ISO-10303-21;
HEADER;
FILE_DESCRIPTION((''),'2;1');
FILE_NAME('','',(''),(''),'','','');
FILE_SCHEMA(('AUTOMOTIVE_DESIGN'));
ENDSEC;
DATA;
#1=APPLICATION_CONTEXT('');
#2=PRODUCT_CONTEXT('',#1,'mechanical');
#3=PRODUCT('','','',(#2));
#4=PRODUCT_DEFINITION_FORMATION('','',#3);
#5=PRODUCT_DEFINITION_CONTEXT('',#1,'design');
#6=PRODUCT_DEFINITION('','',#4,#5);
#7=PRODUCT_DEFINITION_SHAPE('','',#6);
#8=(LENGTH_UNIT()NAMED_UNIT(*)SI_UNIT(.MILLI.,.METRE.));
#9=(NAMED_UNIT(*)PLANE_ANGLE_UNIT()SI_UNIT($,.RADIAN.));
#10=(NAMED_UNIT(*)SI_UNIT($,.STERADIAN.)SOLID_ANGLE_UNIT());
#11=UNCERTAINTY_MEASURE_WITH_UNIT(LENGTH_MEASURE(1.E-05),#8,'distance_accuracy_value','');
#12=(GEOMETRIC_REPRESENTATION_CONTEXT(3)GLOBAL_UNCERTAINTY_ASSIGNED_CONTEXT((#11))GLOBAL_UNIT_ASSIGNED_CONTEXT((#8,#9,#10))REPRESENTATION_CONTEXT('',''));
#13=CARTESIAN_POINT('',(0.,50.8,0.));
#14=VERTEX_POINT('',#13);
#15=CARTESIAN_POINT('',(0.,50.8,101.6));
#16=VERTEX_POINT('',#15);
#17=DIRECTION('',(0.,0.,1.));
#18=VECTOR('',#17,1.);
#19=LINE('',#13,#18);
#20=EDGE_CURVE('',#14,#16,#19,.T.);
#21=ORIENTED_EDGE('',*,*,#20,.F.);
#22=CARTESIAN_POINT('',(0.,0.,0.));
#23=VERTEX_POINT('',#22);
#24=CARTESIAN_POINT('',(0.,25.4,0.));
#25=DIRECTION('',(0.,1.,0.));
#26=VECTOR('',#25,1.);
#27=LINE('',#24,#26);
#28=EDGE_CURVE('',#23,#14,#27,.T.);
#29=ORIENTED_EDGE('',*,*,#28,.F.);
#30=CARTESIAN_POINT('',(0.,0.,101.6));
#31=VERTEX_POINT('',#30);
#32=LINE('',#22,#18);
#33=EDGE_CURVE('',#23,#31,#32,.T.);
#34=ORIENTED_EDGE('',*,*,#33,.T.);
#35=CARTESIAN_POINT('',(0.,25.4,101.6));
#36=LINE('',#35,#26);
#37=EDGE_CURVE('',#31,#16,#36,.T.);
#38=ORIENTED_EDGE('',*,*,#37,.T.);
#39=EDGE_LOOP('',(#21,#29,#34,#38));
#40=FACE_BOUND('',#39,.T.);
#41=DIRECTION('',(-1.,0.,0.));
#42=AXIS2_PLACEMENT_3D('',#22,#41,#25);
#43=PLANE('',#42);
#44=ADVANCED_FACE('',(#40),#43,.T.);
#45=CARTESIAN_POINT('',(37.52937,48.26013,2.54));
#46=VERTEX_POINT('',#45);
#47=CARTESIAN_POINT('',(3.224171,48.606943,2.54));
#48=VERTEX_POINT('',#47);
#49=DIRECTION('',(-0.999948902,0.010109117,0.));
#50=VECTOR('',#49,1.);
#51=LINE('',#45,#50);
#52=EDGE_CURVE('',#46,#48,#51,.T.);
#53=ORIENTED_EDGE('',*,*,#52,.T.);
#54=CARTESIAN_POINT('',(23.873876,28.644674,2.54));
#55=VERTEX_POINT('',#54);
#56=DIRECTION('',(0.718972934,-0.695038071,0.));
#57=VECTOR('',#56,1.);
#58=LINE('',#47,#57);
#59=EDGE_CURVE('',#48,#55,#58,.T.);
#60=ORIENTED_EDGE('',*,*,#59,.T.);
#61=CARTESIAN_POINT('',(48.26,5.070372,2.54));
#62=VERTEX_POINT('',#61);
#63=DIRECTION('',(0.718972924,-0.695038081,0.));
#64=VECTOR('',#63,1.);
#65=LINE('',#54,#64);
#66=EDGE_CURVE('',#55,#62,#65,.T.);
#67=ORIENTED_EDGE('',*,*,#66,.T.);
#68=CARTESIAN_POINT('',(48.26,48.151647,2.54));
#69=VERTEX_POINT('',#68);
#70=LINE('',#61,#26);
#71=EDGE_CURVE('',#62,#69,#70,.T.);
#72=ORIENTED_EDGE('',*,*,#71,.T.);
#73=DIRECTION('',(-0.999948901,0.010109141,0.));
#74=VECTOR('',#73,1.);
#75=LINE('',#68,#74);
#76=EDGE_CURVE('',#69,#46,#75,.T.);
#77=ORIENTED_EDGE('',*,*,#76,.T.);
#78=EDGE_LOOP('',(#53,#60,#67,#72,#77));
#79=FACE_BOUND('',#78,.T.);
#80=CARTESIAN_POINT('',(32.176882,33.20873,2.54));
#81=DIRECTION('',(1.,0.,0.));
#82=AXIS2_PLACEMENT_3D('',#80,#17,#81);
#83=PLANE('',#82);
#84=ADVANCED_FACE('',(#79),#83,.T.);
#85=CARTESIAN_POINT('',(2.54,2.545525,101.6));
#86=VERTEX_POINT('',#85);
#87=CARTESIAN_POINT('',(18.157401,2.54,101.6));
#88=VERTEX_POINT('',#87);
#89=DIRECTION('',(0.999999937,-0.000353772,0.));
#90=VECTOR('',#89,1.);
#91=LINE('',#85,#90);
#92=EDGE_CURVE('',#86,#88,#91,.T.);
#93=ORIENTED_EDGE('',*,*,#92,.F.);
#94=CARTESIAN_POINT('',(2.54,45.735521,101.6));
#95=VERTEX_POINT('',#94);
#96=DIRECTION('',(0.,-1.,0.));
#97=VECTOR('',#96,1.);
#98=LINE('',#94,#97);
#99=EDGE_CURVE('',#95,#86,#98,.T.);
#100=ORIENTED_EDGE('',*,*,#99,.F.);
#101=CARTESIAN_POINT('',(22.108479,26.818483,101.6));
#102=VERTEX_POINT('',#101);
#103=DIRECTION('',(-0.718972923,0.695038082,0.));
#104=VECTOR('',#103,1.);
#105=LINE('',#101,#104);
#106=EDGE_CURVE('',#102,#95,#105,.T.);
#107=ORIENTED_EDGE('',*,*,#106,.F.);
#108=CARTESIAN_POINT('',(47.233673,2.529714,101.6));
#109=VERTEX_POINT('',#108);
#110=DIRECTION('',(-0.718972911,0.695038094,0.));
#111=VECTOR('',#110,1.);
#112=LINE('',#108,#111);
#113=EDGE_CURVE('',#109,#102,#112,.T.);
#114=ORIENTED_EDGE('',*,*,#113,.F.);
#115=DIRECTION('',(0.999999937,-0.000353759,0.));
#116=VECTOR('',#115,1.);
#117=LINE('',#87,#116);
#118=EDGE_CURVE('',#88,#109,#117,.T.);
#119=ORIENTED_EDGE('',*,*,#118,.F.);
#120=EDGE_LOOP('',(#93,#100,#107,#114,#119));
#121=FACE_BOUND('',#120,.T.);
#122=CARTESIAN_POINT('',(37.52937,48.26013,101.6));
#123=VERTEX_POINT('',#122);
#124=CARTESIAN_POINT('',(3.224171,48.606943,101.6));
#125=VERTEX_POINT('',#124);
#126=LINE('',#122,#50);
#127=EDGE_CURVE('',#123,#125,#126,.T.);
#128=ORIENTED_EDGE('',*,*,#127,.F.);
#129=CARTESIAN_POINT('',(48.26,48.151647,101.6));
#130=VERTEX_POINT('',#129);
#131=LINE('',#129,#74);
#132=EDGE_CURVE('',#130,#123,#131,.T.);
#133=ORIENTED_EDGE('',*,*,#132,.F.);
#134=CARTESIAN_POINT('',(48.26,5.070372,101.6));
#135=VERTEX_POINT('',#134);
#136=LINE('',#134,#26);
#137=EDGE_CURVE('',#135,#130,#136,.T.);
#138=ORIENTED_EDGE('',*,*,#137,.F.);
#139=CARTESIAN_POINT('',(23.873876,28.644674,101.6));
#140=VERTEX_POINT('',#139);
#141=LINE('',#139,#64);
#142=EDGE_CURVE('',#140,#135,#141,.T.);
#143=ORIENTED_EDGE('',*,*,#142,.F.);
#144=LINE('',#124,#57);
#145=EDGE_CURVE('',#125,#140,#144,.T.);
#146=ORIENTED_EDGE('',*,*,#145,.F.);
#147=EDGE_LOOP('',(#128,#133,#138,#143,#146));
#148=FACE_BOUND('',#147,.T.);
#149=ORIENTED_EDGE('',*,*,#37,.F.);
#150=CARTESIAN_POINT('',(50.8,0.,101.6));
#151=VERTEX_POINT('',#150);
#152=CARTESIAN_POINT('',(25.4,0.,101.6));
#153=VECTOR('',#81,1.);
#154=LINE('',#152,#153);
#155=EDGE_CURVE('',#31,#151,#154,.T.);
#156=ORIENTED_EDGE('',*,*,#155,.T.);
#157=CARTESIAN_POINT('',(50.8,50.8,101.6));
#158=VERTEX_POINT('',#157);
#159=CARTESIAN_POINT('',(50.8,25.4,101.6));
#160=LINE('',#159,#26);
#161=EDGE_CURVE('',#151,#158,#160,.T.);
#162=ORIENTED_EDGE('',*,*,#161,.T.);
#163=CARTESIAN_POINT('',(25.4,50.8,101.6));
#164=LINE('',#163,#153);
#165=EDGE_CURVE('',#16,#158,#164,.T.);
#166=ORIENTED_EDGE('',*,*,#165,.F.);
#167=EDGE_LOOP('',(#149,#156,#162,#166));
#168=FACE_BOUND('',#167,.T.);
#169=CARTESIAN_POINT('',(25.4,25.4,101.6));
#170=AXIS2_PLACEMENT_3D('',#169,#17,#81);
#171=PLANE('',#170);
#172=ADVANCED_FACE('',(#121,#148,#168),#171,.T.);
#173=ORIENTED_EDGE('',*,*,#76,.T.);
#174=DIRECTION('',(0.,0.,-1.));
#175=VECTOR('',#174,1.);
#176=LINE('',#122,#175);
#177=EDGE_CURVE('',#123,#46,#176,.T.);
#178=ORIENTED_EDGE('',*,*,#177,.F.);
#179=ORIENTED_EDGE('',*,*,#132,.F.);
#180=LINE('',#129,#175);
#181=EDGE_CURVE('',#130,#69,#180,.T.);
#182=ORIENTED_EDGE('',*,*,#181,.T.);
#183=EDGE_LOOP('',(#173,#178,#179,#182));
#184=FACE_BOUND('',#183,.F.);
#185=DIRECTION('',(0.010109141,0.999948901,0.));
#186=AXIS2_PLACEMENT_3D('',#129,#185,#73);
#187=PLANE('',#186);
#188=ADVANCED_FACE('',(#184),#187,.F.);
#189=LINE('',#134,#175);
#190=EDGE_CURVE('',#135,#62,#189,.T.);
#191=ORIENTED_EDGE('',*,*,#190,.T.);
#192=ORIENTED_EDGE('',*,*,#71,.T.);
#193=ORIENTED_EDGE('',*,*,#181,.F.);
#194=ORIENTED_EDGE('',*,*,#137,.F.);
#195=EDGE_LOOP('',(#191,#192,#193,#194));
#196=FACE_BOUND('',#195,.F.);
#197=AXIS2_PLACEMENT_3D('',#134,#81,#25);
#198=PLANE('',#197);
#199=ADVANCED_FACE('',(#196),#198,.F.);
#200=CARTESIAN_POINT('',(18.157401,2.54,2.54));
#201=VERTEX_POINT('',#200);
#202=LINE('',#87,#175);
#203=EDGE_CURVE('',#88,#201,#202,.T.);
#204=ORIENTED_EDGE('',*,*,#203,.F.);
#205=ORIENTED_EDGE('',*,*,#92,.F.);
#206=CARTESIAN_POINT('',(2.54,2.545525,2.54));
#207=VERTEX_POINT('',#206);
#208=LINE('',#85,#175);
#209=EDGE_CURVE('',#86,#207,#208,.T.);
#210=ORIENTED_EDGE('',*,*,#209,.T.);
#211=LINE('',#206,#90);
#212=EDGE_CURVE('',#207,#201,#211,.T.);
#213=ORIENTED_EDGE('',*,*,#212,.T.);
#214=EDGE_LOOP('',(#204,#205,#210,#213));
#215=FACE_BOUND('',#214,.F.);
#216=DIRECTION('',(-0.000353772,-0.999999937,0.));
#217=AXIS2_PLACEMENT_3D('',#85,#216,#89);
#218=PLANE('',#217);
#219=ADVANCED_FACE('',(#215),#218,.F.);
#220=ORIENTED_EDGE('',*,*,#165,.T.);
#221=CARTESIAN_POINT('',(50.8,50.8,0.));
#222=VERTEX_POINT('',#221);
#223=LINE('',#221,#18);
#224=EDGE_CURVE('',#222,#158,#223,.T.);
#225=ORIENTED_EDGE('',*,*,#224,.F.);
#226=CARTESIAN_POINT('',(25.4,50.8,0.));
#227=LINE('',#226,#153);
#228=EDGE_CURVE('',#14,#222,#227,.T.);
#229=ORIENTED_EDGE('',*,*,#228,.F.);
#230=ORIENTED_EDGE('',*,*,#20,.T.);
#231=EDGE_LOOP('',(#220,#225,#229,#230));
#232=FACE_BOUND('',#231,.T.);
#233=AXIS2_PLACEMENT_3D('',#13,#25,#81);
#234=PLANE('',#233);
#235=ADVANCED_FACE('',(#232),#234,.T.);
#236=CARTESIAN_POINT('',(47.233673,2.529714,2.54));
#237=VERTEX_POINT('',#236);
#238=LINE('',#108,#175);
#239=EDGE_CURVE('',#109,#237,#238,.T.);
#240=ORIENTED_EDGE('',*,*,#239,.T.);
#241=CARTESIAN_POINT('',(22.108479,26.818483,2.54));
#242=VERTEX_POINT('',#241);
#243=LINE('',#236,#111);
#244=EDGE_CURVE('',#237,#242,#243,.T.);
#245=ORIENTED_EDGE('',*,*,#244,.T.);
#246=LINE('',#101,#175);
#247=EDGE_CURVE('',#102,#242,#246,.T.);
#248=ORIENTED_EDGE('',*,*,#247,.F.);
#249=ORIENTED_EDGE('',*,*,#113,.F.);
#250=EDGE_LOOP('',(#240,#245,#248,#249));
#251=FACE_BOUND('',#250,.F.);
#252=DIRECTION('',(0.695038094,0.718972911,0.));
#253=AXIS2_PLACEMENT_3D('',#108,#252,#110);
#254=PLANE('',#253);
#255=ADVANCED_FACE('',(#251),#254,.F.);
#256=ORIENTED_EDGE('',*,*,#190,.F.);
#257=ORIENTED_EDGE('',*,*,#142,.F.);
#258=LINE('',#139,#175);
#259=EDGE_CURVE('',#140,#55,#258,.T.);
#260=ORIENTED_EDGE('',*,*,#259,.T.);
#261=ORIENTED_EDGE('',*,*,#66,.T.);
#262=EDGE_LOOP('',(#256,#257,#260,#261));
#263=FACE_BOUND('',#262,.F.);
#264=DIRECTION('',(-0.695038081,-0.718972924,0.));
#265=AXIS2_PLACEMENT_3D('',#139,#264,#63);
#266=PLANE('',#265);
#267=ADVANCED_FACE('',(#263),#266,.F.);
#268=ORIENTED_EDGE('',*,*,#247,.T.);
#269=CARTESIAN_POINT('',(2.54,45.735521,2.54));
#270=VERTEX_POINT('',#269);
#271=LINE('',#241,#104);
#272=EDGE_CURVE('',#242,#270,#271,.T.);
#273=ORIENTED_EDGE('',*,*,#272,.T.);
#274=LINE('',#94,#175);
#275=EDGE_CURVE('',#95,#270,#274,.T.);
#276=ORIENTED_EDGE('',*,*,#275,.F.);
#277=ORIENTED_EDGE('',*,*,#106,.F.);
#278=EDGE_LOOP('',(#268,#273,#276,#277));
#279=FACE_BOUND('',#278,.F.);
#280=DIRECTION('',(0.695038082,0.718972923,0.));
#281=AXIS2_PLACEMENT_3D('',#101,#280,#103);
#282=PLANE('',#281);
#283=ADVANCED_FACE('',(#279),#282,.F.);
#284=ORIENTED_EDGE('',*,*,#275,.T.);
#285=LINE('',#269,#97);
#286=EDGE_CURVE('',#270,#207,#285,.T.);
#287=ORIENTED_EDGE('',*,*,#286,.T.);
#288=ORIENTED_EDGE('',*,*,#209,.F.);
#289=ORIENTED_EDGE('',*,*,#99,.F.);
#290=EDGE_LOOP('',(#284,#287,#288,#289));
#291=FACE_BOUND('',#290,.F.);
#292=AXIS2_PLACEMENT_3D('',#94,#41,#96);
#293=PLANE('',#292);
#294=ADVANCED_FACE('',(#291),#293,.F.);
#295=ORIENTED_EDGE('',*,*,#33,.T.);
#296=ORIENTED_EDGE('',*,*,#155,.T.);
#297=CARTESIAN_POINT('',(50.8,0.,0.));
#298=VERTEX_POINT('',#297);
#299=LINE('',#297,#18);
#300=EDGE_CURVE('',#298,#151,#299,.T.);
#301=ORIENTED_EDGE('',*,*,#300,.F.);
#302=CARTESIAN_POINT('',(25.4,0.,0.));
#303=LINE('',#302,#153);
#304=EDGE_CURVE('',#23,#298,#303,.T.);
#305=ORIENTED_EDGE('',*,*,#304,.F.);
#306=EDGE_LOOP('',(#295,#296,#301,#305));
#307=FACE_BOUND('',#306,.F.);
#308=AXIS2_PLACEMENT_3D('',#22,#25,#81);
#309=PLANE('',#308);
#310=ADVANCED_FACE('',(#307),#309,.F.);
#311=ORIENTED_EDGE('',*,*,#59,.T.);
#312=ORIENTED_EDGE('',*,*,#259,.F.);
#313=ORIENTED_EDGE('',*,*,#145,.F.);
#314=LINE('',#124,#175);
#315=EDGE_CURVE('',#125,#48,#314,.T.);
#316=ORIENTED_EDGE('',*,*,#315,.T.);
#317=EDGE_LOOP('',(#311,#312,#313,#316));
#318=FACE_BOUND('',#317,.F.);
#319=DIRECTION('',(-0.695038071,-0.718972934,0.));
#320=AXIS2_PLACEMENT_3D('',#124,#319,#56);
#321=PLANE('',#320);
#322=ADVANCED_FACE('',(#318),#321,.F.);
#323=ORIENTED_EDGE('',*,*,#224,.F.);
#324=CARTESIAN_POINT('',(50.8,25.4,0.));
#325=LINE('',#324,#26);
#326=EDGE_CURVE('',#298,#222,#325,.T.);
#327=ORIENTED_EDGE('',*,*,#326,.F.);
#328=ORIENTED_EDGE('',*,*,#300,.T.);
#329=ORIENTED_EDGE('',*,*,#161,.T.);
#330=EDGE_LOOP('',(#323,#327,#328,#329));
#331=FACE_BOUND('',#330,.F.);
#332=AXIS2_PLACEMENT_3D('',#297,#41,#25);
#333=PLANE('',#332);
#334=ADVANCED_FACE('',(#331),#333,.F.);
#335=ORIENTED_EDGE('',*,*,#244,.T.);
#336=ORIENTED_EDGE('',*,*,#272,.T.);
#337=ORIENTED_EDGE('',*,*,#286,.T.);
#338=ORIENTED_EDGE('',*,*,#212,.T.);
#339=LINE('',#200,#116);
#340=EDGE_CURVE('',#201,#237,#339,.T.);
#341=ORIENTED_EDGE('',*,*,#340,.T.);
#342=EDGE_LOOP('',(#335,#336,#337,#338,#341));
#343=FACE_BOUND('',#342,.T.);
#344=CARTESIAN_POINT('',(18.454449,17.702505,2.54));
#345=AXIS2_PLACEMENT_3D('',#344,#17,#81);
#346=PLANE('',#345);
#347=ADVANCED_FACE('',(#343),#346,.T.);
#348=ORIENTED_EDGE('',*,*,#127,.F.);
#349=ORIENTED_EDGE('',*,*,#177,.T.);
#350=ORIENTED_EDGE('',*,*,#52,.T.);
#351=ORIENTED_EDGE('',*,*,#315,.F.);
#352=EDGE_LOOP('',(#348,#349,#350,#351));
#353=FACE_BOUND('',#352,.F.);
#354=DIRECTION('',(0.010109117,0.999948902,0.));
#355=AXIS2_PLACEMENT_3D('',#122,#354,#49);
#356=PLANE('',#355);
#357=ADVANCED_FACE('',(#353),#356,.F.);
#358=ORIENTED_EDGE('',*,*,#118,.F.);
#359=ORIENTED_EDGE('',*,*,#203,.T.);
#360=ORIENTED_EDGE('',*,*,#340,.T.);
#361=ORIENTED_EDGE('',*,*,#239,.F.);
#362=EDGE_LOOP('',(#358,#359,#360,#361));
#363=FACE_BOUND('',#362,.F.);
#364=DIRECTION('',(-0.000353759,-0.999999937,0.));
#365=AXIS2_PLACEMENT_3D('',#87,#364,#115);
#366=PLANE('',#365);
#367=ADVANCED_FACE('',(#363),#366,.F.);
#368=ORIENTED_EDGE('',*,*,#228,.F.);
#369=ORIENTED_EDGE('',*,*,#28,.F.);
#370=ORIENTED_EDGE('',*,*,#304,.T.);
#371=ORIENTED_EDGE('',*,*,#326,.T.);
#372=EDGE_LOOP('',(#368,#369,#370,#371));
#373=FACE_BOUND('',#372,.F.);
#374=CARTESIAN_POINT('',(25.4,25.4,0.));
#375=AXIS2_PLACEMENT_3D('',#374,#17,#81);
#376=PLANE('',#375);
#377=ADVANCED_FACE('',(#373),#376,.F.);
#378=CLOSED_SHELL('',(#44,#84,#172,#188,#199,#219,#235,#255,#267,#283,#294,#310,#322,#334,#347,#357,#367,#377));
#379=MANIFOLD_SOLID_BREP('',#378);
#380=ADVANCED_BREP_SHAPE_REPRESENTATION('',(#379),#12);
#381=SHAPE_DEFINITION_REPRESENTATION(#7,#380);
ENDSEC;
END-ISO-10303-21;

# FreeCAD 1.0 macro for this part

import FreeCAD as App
import Part
import Sketcher
from FreeCAD import Vector
Q = App.Units.Quantity


def add_polygon(sketch, points):
    """Adds a closed chain of lines whose ends are joined by coincident constraints."""
    first, n = sketch.GeometryCount, len(points)
    for a, b in zip(points, points[1:] + points[:1]):
        sketch.addGeometry(Part.LineSegment(App.Vector(*a, 0), App.Vector(*b, 0)), False)
    for i in range(n):
        sketch.addConstraint(Sketcher.Constraint("Coincident", first + i, 2, first + (i + 1) % n, 1))

doc = App.newDocument("Part")
body = doc.addObject("PartDesign::Body", "Body")

# Sketch on XY plane
sketch1 = body.newObject("Sketcher::SketchObject", "Sketch")
sketch1.AttachmentSupport = (doc.getObject("XY_Plane"), [""])
sketch1.MapMode = "FlatFace"
add_polygon(sketch1, [(0, 51), (0, 0), (51, 0), (51, 51)])  # lines 0-3
sketch1.addConstraint([
    Sketcher.Constraint("Vertical", 0),
    Sketcher.Constraint("Horizontal", 1),
    Sketcher.Constraint("Vertical", 2),
    Sketcher.Constraint("Horizontal", 3),
    Sketcher.Constraint("Coincident", 0, 2, -1, 1),
    Sketcher.Constraint("Equal", 3, 0),
    Sketcher.Constraint("DistanceX", 1, 1, 1, 2, Q("2 in")),
])
pad1 = body.newObject("PartDesign::Pad", "Pad")
pad1.Profile = sketch1
pad1.Length = Q("4 in")

# Sketch on XY plane
sketch2 = body.newObject("Sketcher::SketchObject", "Sketch001")
sketch2.AttachmentSupport = (doc.getObject("XY_Plane"), [""])
sketch2.MapMode = "FlatFace"
sketch2.AttachmentOffset = App.Placement(Vector(0, 0, 4 * 25.4), App.Rotation())
add_polygon(sketch2, [(3, 3), (18, 3), (47, 3), (22, 27), (3, 46)])  # lines 0-4
sketch2.addConstraint([
    Sketcher.Constraint("Vertical", 4),
    Sketcher.Constraint("Parallel", 0, 1),
    Sketcher.Constraint("Parallel", 2, 3),
    Sketcher.Constraint("DistanceY", -1, 1, 0, 2, Q("0.1 in")),
    Sketcher.Constraint("DistanceX", -1, 1, 3, 2, Q("0.1 in")),
    Sketcher.Constraint("Distance", 0, Q("15.617402 mm")),
    Sketcher.Constraint("Distance", 3, Q("27.217268 mm")),
    Sketcher.Constraint("DistanceY", 4, 2, 4, 1, Q("43.189996 mm")),
    Sketcher.Constraint("DistanceX", -1, 1, 2, 2, Q("22.108479 mm")),
    Sketcher.Constraint("DistanceY", -1, 1, 3, 2, Q("45.735521 mm")),
])
pocket1 = body.newObject("PartDesign::Pocket", "Pocket")
pocket1.Profile = sketch2
pocket1.Length = Q("3.9 in")

# Sketch on XY plane
sketch3 = body.newObject("Sketcher::SketchObject", "Sketch002")
sketch3.AttachmentSupport = (doc.getObject("XY_Plane"), [""])
sketch3.MapMode = "FlatFace"
sketch3.AttachmentOffset = App.Placement(Vector(0, 0, 4 * 25.4), App.Rotation())
add_polygon(sketch3, [(3, 49), (24, 29), (48, 5), (48, 48), (38, 48)])  # lines 0-4
sketch3.addConstraint([
    Sketcher.Constraint("Vertical", 2),
    Sketcher.Constraint("Parallel", 0, 1),
    Sketcher.Constraint("Parallel", 3, 4),
    Sketcher.Constraint("DistanceX", -1, 1, 1, 2, Q("1.9 in")),
    Sketcher.Constraint("Distance", 1, Q("33.918001 mm")),
    Sketcher.Constraint("DistanceY", 1, 2, 0, 2, Q("23.574302 mm")),
    Sketcher.Constraint("DistanceX", 4, 2, 3, 2, Q("34.305199 mm")),
    Sketcher.Constraint("Distance", 3, Q("10.731178 mm")),
    Sketcher.Constraint("DistanceY", 2, 1, 2, 2, Q("43.081275 mm")),
    Sketcher.Constraint("DistanceY", -1, 1, 3, 2, Q("48.26013 mm")),
])
pocket2 = body.newObject("PartDesign::Pocket", "Pocket001")
pocket2.Profile = sketch3
pocket2.Length = Q("3.9 in")

doc.recompute()
